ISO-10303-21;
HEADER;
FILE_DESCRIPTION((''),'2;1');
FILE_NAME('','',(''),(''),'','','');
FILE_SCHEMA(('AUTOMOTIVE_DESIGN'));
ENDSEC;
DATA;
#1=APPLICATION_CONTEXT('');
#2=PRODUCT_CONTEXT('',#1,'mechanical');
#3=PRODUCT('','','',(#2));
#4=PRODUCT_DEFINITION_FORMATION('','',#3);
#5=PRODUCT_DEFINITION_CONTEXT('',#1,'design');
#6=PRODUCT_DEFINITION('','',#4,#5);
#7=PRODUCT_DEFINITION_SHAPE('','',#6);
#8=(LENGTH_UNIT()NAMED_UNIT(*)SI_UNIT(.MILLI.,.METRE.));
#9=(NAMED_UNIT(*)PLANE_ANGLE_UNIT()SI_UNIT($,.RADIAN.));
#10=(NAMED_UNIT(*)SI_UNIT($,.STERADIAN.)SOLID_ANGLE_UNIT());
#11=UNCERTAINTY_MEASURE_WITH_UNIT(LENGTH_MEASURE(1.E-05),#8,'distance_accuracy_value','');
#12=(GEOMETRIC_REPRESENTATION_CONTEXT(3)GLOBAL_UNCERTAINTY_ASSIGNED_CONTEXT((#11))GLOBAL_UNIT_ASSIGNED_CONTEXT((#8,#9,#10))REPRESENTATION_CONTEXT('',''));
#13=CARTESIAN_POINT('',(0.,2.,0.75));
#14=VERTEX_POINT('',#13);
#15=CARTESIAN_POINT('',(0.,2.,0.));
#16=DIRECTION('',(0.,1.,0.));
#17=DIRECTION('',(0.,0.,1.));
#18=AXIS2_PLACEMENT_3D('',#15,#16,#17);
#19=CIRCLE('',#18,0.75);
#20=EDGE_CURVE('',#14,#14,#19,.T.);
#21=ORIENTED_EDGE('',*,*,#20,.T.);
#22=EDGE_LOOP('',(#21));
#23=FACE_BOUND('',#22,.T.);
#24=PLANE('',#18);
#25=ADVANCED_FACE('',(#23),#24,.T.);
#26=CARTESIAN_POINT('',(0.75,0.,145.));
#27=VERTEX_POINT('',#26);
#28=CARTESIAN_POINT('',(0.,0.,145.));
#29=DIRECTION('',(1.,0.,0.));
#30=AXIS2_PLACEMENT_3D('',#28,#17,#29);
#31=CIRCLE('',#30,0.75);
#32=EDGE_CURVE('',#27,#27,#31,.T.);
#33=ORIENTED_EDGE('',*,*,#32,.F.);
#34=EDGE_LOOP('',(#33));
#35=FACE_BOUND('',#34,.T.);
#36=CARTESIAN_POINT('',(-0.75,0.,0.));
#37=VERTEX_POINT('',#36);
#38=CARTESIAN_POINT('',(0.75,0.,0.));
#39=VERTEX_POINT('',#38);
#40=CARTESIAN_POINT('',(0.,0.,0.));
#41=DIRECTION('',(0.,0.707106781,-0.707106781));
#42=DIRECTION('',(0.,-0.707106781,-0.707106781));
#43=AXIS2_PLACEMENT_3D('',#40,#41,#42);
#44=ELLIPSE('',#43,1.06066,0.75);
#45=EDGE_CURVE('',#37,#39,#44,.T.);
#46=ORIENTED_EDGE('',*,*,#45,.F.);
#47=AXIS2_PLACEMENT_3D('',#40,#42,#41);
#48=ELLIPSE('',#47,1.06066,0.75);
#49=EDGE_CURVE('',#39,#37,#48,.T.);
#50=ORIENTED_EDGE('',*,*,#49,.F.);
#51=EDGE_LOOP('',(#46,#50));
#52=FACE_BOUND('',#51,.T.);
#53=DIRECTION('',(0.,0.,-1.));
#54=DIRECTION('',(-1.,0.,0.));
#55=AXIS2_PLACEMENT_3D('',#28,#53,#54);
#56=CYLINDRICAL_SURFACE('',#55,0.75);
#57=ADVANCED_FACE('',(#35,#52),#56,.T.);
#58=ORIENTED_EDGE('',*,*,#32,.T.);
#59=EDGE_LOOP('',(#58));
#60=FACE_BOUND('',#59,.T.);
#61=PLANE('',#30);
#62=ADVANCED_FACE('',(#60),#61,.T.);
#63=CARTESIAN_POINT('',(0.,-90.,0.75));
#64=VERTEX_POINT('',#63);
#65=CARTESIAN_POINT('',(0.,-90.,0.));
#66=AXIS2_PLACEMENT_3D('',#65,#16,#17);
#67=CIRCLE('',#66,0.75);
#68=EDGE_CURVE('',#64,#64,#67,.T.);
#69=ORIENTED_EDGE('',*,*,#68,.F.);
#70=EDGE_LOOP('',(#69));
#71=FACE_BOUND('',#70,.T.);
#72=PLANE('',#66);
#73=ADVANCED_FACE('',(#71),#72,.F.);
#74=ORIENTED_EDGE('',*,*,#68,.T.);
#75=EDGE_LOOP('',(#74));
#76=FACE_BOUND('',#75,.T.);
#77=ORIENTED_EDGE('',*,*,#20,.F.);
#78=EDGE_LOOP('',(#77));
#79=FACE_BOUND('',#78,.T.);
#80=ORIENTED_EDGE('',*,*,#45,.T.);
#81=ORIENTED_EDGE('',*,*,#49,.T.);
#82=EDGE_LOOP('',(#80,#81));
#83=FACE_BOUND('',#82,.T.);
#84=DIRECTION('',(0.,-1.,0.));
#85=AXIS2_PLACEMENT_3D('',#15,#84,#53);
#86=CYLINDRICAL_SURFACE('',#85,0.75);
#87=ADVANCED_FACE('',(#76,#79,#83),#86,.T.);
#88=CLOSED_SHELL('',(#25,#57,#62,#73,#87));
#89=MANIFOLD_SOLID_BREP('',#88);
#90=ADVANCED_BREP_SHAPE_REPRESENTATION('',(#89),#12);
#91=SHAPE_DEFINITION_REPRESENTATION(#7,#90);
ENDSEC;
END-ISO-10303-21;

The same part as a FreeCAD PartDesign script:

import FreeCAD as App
import Part
import Sketcher
from FreeCAD import Vector
Q = App.Units.Quantity

doc = App.newDocument("Part")
params = doc.addObject("Spreadsheet::Sheet", "Params")
for row, (alias, value) in enumerate([
    ("sketch1_diameter", "1.5 mm"),
    ("pad1_length", "145 mm"),
    ("sketch2_diameter", "1.5 mm"),
    ("pad2_length", "2 mm"),
    ("pad2_length2", "90 mm"),
], start=1):
    params.set(f"A{row}", alias)
    params.set(f"B{row}", "=" + value)
    params.setAlias(f"B{row}", alias)

body = doc.addObject("PartDesign::Body", "Body")

# Sketch on XY plane
sketch1 = body.newObject("Sketcher::SketchObject", "Sketch")
sketch1.AttachmentSupport = (doc.getObject("XY_Plane"), [""])
sketch1.MapMode = "FlatFace"
sketch1.addGeometry(Part.Circle(Vector(0, 0, 0), Vector(0, 0, 1), 0.75), False)
sketch1.addConstraint([
    Sketcher.Constraint("Coincident", 0, 3, -1, 1),
    Sketcher.Constraint("Diameter", 0, Q("1.5 mm")),
])
sketch1.setExpression("Constraints[1]", "Params.sketch1_diameter")
pad1 = body.newObject("PartDesign::Pad", "Pad")
pad1.Profile = sketch1
pad1.setExpression("Length", "Params.pad1_length")

# Sketch on XZ plane
sketch2 = body.newObject("Sketcher::SketchObject", "Sketch001")
sketch2.AttachmentSupport = (doc.getObject("XZ_Plane"), [""])
sketch2.MapMode = "FlatFace"
sketch2.addGeometry(Part.Circle(Vector(0, 0, 0), Vector(0, 0, 1), 0.75), False)
sketch2.addConstraint([
    Sketcher.Constraint("Coincident", 0, 3, -1, 1),
    Sketcher.Constraint("Diameter", 0, Q("1.5 mm")),
])
sketch2.setExpression("Constraints[1]", "Params.sketch2_diameter")
pad2 = body.newObject("PartDesign::Pad", "Pad001")
pad2.Profile = sketch2
pad2.Type = "TwoLengths"
pad2.setExpression("Length", "Params.pad2_length")
pad2.setExpression("Length2", "Params.pad2_length2")
pad2.Reversed = True

doc.recompute()
